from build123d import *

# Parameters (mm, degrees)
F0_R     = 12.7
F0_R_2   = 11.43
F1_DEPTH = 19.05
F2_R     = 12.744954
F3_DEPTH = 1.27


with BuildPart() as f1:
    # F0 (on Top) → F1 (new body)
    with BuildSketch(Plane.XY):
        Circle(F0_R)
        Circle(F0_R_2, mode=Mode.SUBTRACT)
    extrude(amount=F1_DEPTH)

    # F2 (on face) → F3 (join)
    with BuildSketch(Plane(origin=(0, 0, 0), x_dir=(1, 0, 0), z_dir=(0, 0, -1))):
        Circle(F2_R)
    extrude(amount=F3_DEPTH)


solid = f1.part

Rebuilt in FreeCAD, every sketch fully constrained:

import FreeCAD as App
import Part
import Sketcher
Q = App.Units.Quantity

doc = App.newDocument("Part")
body = doc.addObject("PartDesign::Body", "Body")

# Sketch on XY plane
sketch1 = body.newObject("Sketcher::SketchObject", "Sketch")
sketch1.AttachmentSupport = (doc.getObject("XY_Plane"), [""])
sketch1.MapMode = "FlatFace"
sketch1.addGeometry(Part.Circle(App.Vector(0, 0, 0), App.Vector(0, 0, 1), 13), False)
sketch1.addGeometry(Part.Circle(App.Vector(0, 0, 0), App.Vector(0, 0, 1), 11), False)
sketch1.addConstraint(Sketcher.Constraint("Coincident", 0, 3, -1, 1))
sketch1.addConstraint(Sketcher.Constraint("Coincident", 1, 3, -1, 1))
sketch1.addConstraint(Sketcher.Constraint("Diameter", 0, Q("1 in")))
sketch1.addConstraint(Sketcher.Constraint("Diameter", 1, Q("0.9 in")))
pad1 = body.newObject("PartDesign::Pad", "Pad")
pad1.Profile = sketch1
pad1.Length = Q("0.75 in")

# Sketch on XY plane
sketch2 = body.newObject("Sketcher::SketchObject", "Sketch001")
sketch2.AttachmentSupport = (doc.getObject("XY_Plane"), [""])
sketch2.MapMode = "FlatFace"
sketch2.addGeometry(Part.Circle(App.Vector(0, 0, 0), App.Vector(0, 0, 1), 13), False)
sketch2.addConstraint(Sketcher.Constraint("Coincident", 0, 3, -1, 1))
sketch2.addConstraint(Sketcher.Constraint("Diameter", 0, 25.489908))
pad2 = body.newObject("PartDesign::Pad", "Pad001")
pad2.Profile = sketch2
pad2.Length = Q("0.05 in")
pad2.Reversed = True

doc.recompute()
